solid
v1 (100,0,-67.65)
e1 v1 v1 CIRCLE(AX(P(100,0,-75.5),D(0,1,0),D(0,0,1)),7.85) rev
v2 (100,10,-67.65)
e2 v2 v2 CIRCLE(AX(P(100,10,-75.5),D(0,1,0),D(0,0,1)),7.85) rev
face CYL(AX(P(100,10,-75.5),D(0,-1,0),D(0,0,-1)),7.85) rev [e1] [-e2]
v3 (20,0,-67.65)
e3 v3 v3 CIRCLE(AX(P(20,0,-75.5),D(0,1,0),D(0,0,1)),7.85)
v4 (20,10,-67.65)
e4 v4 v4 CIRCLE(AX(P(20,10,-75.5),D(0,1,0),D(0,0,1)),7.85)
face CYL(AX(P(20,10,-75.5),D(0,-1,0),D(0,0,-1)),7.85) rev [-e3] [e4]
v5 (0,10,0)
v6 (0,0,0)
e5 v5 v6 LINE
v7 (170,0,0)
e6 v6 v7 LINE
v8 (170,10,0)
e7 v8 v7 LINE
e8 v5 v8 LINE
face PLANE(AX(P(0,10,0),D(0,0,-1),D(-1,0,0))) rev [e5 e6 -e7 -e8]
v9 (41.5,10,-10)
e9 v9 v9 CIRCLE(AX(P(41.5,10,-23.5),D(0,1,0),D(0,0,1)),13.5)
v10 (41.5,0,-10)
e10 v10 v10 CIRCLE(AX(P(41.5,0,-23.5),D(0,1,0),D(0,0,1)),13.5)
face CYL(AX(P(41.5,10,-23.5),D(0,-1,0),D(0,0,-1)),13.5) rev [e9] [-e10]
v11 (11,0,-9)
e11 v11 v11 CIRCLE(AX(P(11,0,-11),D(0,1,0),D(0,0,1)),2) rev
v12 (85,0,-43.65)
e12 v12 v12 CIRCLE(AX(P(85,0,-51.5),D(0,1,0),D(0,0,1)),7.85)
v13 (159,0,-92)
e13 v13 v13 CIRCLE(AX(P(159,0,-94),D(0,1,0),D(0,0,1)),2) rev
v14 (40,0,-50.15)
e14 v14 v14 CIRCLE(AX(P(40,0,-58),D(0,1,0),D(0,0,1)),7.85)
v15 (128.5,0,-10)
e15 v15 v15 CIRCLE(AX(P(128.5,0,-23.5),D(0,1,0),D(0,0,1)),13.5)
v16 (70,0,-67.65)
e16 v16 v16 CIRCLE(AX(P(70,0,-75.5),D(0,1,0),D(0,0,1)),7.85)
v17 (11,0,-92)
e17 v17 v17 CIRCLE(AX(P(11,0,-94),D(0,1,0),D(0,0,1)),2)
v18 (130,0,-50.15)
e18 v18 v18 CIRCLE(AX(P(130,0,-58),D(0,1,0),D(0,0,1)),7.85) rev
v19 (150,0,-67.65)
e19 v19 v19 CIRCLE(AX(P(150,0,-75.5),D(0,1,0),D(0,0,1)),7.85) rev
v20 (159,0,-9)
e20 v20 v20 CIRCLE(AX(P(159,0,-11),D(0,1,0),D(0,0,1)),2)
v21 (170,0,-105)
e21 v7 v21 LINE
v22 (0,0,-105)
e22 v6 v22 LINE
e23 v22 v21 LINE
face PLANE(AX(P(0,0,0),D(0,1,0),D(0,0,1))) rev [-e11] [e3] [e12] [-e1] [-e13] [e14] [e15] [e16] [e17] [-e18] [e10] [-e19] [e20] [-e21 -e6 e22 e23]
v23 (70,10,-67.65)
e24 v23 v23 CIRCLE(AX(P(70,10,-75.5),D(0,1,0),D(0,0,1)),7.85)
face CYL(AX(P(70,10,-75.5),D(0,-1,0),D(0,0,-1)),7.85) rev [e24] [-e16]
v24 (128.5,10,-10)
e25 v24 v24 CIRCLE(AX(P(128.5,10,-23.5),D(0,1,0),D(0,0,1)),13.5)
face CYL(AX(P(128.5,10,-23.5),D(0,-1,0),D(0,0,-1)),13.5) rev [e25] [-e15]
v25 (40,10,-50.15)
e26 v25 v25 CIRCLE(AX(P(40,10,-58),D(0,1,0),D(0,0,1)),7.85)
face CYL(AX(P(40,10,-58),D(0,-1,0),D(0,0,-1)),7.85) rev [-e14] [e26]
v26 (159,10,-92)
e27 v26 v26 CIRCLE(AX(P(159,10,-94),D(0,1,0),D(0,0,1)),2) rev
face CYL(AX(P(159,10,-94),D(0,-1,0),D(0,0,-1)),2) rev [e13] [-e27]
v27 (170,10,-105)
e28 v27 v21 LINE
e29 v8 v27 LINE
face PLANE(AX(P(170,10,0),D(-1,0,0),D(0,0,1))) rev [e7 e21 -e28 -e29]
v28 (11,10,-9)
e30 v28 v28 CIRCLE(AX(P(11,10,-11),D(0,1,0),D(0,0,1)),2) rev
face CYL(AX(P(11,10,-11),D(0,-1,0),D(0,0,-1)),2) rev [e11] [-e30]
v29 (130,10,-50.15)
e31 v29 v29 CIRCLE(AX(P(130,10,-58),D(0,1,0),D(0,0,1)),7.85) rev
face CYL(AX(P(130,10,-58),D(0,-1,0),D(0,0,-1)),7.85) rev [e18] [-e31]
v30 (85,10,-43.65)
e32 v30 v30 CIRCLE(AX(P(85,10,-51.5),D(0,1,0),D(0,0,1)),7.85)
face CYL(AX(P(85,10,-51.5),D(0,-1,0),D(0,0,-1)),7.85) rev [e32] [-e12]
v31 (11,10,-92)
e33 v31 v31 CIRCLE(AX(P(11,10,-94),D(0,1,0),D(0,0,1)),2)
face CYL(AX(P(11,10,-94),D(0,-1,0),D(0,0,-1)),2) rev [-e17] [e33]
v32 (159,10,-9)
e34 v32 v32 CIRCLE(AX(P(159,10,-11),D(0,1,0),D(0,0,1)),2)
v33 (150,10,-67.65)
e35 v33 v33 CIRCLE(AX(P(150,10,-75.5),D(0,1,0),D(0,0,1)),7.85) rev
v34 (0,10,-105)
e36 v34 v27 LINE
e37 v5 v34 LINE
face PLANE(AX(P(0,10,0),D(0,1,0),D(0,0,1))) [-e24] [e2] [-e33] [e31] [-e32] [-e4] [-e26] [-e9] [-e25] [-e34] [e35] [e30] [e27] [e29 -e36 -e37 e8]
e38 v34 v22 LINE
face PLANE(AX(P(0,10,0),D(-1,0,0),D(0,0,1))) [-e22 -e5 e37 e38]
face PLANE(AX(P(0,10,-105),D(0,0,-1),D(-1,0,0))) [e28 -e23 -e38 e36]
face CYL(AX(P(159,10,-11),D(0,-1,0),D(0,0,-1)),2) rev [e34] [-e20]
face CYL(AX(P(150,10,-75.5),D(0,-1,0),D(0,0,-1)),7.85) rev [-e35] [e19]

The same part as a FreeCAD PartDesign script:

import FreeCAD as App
import Part
import Sketcher
from FreeCAD import Vector

doc = App.newDocument("Part")
body = doc.addObject("PartDesign::Body", "Body")

# Sketch on XZ plane
sketch1 = body.newObject("Sketcher::SketchObject", "Sketch")
sketch1.AttachmentSupport = (doc.getObject("XZ_Plane"), [""])
sketch1.MapMode = "FlatFace"
sketch1.addGeometry(Part.LineSegment(Vector(0, -105, 0), Vector(0, 0, 0)), False)
sketch1.addGeometry(Part.LineSegment(Vector(0, 0, 0), Vector(170, 0, 0)), False)
sketch1.addGeometry(Part.LineSegment(Vector(170, 0, 0), Vector(170, -105, 0)), False)
sketch1.addGeometry(Part.LineSegment(Vector(170, -105, 0), Vector(0, -105, 0)), False)
sketch1.addGeometry(Part.Circle(Vector(11, -11, 0), Vector(0, 0, 1), 2), False)
sketch1.addGeometry(Part.Circle(Vector(41.5, -23.5, 0), Vector(0, 0, 1), 13.5), False)
sketch1.addGeometry(Part.Circle(Vector(159, -11, 0), Vector(0, 0, 1), 2), False)
sketch1.addGeometry(Part.Circle(Vector(128.5, -23.5, 0), Vector(0, 0, 1), 13.5), False)
sketch1.addGeometry(Part.Circle(Vector(85, -51.5, 0), Vector(0, 0, 1), 7.85), False)
sketch1.addGeometry(Part.Circle(Vector(40, -58, 0), Vector(0, 0, 1), 7.85), False)
sketch1.addGeometry(Part.Circle(Vector(20, -75.5, 0), Vector(0, 0, 1), 7.85), False)
sketch1.addGeometry(Part.Circle(Vector(11, -94, 0), Vector(0, 0, 1), 2), False)
sketch1.addGeometry(Part.Circle(Vector(70, -75.5, 0), Vector(0, 0, 1), 7.85), False)
sketch1.addGeometry(Part.Circle(Vector(130, -58, 0), Vector(0, 0, 1), 7.85), False)
sketch1.addGeometry(Part.Circle(Vector(100, -75.5, 0), Vector(0, 0, 1), 7.85), False)
sketch1.addGeometry(Part.Circle(Vector(150, -75.5, 0), Vector(0, 0, 1), 7.85), False)
sketch1.addGeometry(Part.Circle(Vector(159, -94, 0), Vector(0, 0, 1), 2), False)
sketch1.addConstraint(Sketcher.Constraint("Coincident", 0, 2, 1, 1))
sketch1.addConstraint(Sketcher.Constraint("Coincident", 1, 2, 2, 1))
sketch1.addConstraint(Sketcher.Constraint("Coincident", 2, 2, 3, 1))
sketch1.addConstraint(Sketcher.Constraint("Coincident", 3, 2, 0, 1))
sketch1.addConstraint(Sketcher.Constraint("Vertical", 0))
sketch1.addConstraint(Sketcher.Constraint("Horizontal", 1))
sketch1.addConstraint(Sketcher.Constraint("Vertical", 2))
sketch1.addConstraint(Sketcher.Constraint("Horizontal", 3))
sketch1.addConstraint(Sketcher.Constraint("Coincident", 0, 2, -1, 1))
sketch1.addConstraint(Sketcher.Constraint("Equal", 4, 6))
sketch1.addConstraint(Sketcher.Constraint("Equal", 5, 7))
sketch1.addConstraint(Sketcher.Constraint("Equal", 8, 9))
sketch1.addConstraint(Sketcher.Constraint("Equal", 9, 10))
sketch1.addConstraint(Sketcher.Constraint("Equal", 6, 11))
sketch1.addConstraint(Sketcher.Constraint("Equal", 10, 12))
sketch1.addConstraint(Sketcher.Constraint("Equal", 12, 13))
sketch1.addConstraint(Sketcher.Constraint("Equal", 13, 14))
sketch1.addConstraint(Sketcher.Constraint("Equal", 14, 15))
sketch1.addConstraint(Sketcher.Constraint("Equal", 11, 16))
sketch1.addConstraint(Sketcher.Constraint("Horizontal", 4, 3, 6, 3))
sketch1.addConstraint(Sketcher.Constraint("Horizontal", 5, 3, 7, 3))
sketch1.addConstraint(Sketcher.Constraint("Horizontal", 10, 3, 12, 3))
sketch1.addConstraint(Sketcher.Constraint("Horizontal", 9, 3, 13, 3))
sketch1.addConstraint(Sketcher.Constraint("Horizontal", 12, 3, 14, 3))
sketch1.addConstraint(Sketcher.Constraint("Horizontal", 14, 3, 15, 3))
sketch1.addConstraint(Sketcher.Constraint("Horizontal", 11, 3, 16, 3))
sketch1.addConstraint(Sketcher.Constraint("Vertical", 4, 3, 11, 3))
sketch1.addConstraint(Sketcher.Constraint("Vertical", 6, 3, 16, 3))
sketch1.addConstraint(Sketcher.Constraint("Diameter", 4, 4.0))
sketch1.addConstraint(Sketcher.Constraint("Diameter", 5, 27.0))
sketch1.addConstraint(Sketcher.Constraint("Diameter", 8, 15.7))
sketch1.addConstraint(Sketcher.Constraint("DistanceX", 1, 1, 1, 2, 170.0))
sketch1.addConstraint(Sketcher.Constraint("DistanceY", 0, 1, 0, 2, 105.0))
sketch1.addConstraint(Sketcher.Constraint("DistanceX", -1, 1, 4, 3, 11.0))
sketch1.addConstraint(Sketcher.Constraint("DistanceY", 4, 3, -1, 1, 11.0))
sketch1.addConstraint(Sketcher.Constraint("DistanceX", -1, 1, 6, 3, 159.0))
sketch1.addConstraint(Sketcher.Constraint("DistanceX", -1, 1, 8, 3, 85.0))
sketch1.addConstraint(Sketcher.Constraint("DistanceX", -1, 1, 9, 3, 40.0))
sketch1.addConstraint(Sketcher.Constraint("DistanceY", 9, 3, -1, 1, 58.0))
sketch1.addConstraint(Sketcher.Constraint("DistanceX", -1, 1, 10, 3, 20.0))
sketch1.addConstraint(Sketcher.Constraint("DistanceY", 11, 3, -1, 1, 94.0))
sketch1.addConstraint(Sketcher.Constraint("DistanceX", -1, 1, 12, 3, 70.0))
sketch1.addConstraint(Sketcher.Constraint("DistanceX", -1, 1, 13, 3, 130.0))
sketch1.addConstraint(Sketcher.Constraint("DistanceX", -1, 1, 14, 3, 100.0))
sketch1.addConstraint(Sketcher.Constraint("DistanceX", -1, 1, 15, 3, 150.0))
sketch1.addConstraint(Sketcher.Constraint("DistanceX", 5, 3, 7, 3, 87.0))
sketch1.addConstraint(Sketcher.Constraint("DistanceY", 8, 3, 5, 3, 28.0))
sketch1.addConstraint(Sketcher.Constraint("DistanceY", 10, 3, 5, 3, 52.0))
sketch1.addConstraint(Sketcher.Constraint("DistanceX", -1, 1, 5, 3, 41.5))
sketch1.addConstraint(Sketcher.Constraint("DistanceY", 5, 3, -1, 1, 23.5))
pad1 = body.newObject("PartDesign::Pad", "Pad")
pad1.Profile = sketch1
pad1.Length = 10
pad1.Reversed = True

doc.recompute()
